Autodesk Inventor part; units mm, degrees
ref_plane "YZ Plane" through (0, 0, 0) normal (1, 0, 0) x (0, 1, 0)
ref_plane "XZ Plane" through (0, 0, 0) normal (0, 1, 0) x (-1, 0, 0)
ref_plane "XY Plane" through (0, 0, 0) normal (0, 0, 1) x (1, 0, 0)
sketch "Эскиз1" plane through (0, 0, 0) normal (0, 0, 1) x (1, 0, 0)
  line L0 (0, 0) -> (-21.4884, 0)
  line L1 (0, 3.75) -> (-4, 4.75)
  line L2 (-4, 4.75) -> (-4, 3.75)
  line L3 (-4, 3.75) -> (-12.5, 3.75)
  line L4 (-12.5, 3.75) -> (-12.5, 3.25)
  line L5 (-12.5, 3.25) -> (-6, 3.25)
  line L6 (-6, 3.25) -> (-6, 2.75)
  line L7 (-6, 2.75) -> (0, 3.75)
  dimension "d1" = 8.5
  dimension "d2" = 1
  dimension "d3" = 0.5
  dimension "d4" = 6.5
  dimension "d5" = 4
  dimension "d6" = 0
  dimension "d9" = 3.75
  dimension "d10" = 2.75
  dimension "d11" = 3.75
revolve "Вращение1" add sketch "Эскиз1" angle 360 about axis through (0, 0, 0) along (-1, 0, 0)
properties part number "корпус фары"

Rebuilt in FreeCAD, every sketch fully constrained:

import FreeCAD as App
import Part
import Sketcher

V = App.Vector
Q = App.Units.Quantity


def add_polygon(sketch, points):
    """Adds a closed chain of lines whose ends are joined by coincident constraints."""
    first, n = sketch.GeometryCount, len(points)
    for a, b in zip(points, points[1:] + points[:1]):
        sketch.addGeometry(Part.LineSegment(App.Vector(*a, 0), App.Vector(*b, 0)), False)
    for i in range(n):
        sketch.addConstraint(Sketcher.Constraint("Coincident", first + i, 2, first + (i + 1) % n, 1))

doc = App.newDocument("Part")
params = doc.addObject("Spreadsheet::Sheet", "Params")
for row, (alias, value) in enumerate([
    ("sketch1_height", "1 mm"),
    ("sketch1_width", "8.5 mm"),
    ("sketch1_width2", "6.5 mm"),
    ("sketch1_height2", "0.5 mm"),
    ("revolution_angle", "360 deg"),
], start=1):
    params.set(f"A{row}", alias)
    params.set(f"B{row}", "=" + value)
    params.setAlias(f"B{row}", alias)

body = doc.addObject("PartDesign::Body", "Body")

# Sketch on XY plane
sketch1 = body.newObject("Sketcher::SketchObject", "Sketch")
sketch1.AttachmentSupport = (doc.getObject("XY_Plane"), [""])
sketch1.MapMode = "FlatFace"
add_polygon(sketch1, [(-6, 2.75), (0, 3.75), (-4, 4.75), (-4, 3.75), (-12.5, 3.75), (-12.5, 3.25), (-6, 3.25)])  # lines 0-6
sketch1.addConstraint(Sketcher.Constraint("Vertical", 2))
sketch1.addConstraint(Sketcher.Constraint("Horizontal", 3))
sketch1.addConstraint(Sketcher.Constraint("Vertical", 4))
sketch1.addConstraint(Sketcher.Constraint("Horizontal", 5))
sketch1.addConstraint(Sketcher.Constraint("Vertical", 6))
sketch1.addConstraint(Sketcher.Constraint("PointOnObject", 0, 2, -2))
sketch1.addConstraint(Sketcher.Constraint("Horizontal", 0, 2, 2, 2))
sketch1.addConstraint(Sketcher.Constraint("Equal", 4, 6))
sketch1.addConstraint(Sketcher.Constraint("DistanceY", 2, 2, 2, 1, Q("1 mm")))
sketch1.addConstraint(Sketcher.Constraint("DistanceX", 3, 2, 3, 1, Q("8.5 mm")))
sketch1.addConstraint(Sketcher.Constraint("DistanceX", 5, 1, 5, 2, Q("6.5 mm")))
sketch1.addConstraint(Sketcher.Constraint("DistanceY", 4, 2, 4, 1, Q("0.5 mm")))
sketch1.addConstraint(Sketcher.Constraint("DistanceX", 1, 2, -1, 1, Q("4 mm")))
sketch1.addConstraint(Sketcher.Constraint("DistanceY", -1, 1, 0, 2, Q("3.75 mm")))
sketch1.setExpression("Constraints[15]", "Params.sketch1_height")
sketch1.setExpression("Constraints[16]", "Params.sketch1_width")
sketch1.setExpression("Constraints[17]", "Params.sketch1_width2")
sketch1.setExpression("Constraints[18]", "Params.sketch1_height2")
revolution = body.newObject("PartDesign::Revolution", "Revolution")
revolution.Profile = sketch1
revolution.ReferenceAxis = (sketch1, ["H_Axis"])
revolution.setExpression("Angle", "Params.revolution_angle")

doc.recompute()
